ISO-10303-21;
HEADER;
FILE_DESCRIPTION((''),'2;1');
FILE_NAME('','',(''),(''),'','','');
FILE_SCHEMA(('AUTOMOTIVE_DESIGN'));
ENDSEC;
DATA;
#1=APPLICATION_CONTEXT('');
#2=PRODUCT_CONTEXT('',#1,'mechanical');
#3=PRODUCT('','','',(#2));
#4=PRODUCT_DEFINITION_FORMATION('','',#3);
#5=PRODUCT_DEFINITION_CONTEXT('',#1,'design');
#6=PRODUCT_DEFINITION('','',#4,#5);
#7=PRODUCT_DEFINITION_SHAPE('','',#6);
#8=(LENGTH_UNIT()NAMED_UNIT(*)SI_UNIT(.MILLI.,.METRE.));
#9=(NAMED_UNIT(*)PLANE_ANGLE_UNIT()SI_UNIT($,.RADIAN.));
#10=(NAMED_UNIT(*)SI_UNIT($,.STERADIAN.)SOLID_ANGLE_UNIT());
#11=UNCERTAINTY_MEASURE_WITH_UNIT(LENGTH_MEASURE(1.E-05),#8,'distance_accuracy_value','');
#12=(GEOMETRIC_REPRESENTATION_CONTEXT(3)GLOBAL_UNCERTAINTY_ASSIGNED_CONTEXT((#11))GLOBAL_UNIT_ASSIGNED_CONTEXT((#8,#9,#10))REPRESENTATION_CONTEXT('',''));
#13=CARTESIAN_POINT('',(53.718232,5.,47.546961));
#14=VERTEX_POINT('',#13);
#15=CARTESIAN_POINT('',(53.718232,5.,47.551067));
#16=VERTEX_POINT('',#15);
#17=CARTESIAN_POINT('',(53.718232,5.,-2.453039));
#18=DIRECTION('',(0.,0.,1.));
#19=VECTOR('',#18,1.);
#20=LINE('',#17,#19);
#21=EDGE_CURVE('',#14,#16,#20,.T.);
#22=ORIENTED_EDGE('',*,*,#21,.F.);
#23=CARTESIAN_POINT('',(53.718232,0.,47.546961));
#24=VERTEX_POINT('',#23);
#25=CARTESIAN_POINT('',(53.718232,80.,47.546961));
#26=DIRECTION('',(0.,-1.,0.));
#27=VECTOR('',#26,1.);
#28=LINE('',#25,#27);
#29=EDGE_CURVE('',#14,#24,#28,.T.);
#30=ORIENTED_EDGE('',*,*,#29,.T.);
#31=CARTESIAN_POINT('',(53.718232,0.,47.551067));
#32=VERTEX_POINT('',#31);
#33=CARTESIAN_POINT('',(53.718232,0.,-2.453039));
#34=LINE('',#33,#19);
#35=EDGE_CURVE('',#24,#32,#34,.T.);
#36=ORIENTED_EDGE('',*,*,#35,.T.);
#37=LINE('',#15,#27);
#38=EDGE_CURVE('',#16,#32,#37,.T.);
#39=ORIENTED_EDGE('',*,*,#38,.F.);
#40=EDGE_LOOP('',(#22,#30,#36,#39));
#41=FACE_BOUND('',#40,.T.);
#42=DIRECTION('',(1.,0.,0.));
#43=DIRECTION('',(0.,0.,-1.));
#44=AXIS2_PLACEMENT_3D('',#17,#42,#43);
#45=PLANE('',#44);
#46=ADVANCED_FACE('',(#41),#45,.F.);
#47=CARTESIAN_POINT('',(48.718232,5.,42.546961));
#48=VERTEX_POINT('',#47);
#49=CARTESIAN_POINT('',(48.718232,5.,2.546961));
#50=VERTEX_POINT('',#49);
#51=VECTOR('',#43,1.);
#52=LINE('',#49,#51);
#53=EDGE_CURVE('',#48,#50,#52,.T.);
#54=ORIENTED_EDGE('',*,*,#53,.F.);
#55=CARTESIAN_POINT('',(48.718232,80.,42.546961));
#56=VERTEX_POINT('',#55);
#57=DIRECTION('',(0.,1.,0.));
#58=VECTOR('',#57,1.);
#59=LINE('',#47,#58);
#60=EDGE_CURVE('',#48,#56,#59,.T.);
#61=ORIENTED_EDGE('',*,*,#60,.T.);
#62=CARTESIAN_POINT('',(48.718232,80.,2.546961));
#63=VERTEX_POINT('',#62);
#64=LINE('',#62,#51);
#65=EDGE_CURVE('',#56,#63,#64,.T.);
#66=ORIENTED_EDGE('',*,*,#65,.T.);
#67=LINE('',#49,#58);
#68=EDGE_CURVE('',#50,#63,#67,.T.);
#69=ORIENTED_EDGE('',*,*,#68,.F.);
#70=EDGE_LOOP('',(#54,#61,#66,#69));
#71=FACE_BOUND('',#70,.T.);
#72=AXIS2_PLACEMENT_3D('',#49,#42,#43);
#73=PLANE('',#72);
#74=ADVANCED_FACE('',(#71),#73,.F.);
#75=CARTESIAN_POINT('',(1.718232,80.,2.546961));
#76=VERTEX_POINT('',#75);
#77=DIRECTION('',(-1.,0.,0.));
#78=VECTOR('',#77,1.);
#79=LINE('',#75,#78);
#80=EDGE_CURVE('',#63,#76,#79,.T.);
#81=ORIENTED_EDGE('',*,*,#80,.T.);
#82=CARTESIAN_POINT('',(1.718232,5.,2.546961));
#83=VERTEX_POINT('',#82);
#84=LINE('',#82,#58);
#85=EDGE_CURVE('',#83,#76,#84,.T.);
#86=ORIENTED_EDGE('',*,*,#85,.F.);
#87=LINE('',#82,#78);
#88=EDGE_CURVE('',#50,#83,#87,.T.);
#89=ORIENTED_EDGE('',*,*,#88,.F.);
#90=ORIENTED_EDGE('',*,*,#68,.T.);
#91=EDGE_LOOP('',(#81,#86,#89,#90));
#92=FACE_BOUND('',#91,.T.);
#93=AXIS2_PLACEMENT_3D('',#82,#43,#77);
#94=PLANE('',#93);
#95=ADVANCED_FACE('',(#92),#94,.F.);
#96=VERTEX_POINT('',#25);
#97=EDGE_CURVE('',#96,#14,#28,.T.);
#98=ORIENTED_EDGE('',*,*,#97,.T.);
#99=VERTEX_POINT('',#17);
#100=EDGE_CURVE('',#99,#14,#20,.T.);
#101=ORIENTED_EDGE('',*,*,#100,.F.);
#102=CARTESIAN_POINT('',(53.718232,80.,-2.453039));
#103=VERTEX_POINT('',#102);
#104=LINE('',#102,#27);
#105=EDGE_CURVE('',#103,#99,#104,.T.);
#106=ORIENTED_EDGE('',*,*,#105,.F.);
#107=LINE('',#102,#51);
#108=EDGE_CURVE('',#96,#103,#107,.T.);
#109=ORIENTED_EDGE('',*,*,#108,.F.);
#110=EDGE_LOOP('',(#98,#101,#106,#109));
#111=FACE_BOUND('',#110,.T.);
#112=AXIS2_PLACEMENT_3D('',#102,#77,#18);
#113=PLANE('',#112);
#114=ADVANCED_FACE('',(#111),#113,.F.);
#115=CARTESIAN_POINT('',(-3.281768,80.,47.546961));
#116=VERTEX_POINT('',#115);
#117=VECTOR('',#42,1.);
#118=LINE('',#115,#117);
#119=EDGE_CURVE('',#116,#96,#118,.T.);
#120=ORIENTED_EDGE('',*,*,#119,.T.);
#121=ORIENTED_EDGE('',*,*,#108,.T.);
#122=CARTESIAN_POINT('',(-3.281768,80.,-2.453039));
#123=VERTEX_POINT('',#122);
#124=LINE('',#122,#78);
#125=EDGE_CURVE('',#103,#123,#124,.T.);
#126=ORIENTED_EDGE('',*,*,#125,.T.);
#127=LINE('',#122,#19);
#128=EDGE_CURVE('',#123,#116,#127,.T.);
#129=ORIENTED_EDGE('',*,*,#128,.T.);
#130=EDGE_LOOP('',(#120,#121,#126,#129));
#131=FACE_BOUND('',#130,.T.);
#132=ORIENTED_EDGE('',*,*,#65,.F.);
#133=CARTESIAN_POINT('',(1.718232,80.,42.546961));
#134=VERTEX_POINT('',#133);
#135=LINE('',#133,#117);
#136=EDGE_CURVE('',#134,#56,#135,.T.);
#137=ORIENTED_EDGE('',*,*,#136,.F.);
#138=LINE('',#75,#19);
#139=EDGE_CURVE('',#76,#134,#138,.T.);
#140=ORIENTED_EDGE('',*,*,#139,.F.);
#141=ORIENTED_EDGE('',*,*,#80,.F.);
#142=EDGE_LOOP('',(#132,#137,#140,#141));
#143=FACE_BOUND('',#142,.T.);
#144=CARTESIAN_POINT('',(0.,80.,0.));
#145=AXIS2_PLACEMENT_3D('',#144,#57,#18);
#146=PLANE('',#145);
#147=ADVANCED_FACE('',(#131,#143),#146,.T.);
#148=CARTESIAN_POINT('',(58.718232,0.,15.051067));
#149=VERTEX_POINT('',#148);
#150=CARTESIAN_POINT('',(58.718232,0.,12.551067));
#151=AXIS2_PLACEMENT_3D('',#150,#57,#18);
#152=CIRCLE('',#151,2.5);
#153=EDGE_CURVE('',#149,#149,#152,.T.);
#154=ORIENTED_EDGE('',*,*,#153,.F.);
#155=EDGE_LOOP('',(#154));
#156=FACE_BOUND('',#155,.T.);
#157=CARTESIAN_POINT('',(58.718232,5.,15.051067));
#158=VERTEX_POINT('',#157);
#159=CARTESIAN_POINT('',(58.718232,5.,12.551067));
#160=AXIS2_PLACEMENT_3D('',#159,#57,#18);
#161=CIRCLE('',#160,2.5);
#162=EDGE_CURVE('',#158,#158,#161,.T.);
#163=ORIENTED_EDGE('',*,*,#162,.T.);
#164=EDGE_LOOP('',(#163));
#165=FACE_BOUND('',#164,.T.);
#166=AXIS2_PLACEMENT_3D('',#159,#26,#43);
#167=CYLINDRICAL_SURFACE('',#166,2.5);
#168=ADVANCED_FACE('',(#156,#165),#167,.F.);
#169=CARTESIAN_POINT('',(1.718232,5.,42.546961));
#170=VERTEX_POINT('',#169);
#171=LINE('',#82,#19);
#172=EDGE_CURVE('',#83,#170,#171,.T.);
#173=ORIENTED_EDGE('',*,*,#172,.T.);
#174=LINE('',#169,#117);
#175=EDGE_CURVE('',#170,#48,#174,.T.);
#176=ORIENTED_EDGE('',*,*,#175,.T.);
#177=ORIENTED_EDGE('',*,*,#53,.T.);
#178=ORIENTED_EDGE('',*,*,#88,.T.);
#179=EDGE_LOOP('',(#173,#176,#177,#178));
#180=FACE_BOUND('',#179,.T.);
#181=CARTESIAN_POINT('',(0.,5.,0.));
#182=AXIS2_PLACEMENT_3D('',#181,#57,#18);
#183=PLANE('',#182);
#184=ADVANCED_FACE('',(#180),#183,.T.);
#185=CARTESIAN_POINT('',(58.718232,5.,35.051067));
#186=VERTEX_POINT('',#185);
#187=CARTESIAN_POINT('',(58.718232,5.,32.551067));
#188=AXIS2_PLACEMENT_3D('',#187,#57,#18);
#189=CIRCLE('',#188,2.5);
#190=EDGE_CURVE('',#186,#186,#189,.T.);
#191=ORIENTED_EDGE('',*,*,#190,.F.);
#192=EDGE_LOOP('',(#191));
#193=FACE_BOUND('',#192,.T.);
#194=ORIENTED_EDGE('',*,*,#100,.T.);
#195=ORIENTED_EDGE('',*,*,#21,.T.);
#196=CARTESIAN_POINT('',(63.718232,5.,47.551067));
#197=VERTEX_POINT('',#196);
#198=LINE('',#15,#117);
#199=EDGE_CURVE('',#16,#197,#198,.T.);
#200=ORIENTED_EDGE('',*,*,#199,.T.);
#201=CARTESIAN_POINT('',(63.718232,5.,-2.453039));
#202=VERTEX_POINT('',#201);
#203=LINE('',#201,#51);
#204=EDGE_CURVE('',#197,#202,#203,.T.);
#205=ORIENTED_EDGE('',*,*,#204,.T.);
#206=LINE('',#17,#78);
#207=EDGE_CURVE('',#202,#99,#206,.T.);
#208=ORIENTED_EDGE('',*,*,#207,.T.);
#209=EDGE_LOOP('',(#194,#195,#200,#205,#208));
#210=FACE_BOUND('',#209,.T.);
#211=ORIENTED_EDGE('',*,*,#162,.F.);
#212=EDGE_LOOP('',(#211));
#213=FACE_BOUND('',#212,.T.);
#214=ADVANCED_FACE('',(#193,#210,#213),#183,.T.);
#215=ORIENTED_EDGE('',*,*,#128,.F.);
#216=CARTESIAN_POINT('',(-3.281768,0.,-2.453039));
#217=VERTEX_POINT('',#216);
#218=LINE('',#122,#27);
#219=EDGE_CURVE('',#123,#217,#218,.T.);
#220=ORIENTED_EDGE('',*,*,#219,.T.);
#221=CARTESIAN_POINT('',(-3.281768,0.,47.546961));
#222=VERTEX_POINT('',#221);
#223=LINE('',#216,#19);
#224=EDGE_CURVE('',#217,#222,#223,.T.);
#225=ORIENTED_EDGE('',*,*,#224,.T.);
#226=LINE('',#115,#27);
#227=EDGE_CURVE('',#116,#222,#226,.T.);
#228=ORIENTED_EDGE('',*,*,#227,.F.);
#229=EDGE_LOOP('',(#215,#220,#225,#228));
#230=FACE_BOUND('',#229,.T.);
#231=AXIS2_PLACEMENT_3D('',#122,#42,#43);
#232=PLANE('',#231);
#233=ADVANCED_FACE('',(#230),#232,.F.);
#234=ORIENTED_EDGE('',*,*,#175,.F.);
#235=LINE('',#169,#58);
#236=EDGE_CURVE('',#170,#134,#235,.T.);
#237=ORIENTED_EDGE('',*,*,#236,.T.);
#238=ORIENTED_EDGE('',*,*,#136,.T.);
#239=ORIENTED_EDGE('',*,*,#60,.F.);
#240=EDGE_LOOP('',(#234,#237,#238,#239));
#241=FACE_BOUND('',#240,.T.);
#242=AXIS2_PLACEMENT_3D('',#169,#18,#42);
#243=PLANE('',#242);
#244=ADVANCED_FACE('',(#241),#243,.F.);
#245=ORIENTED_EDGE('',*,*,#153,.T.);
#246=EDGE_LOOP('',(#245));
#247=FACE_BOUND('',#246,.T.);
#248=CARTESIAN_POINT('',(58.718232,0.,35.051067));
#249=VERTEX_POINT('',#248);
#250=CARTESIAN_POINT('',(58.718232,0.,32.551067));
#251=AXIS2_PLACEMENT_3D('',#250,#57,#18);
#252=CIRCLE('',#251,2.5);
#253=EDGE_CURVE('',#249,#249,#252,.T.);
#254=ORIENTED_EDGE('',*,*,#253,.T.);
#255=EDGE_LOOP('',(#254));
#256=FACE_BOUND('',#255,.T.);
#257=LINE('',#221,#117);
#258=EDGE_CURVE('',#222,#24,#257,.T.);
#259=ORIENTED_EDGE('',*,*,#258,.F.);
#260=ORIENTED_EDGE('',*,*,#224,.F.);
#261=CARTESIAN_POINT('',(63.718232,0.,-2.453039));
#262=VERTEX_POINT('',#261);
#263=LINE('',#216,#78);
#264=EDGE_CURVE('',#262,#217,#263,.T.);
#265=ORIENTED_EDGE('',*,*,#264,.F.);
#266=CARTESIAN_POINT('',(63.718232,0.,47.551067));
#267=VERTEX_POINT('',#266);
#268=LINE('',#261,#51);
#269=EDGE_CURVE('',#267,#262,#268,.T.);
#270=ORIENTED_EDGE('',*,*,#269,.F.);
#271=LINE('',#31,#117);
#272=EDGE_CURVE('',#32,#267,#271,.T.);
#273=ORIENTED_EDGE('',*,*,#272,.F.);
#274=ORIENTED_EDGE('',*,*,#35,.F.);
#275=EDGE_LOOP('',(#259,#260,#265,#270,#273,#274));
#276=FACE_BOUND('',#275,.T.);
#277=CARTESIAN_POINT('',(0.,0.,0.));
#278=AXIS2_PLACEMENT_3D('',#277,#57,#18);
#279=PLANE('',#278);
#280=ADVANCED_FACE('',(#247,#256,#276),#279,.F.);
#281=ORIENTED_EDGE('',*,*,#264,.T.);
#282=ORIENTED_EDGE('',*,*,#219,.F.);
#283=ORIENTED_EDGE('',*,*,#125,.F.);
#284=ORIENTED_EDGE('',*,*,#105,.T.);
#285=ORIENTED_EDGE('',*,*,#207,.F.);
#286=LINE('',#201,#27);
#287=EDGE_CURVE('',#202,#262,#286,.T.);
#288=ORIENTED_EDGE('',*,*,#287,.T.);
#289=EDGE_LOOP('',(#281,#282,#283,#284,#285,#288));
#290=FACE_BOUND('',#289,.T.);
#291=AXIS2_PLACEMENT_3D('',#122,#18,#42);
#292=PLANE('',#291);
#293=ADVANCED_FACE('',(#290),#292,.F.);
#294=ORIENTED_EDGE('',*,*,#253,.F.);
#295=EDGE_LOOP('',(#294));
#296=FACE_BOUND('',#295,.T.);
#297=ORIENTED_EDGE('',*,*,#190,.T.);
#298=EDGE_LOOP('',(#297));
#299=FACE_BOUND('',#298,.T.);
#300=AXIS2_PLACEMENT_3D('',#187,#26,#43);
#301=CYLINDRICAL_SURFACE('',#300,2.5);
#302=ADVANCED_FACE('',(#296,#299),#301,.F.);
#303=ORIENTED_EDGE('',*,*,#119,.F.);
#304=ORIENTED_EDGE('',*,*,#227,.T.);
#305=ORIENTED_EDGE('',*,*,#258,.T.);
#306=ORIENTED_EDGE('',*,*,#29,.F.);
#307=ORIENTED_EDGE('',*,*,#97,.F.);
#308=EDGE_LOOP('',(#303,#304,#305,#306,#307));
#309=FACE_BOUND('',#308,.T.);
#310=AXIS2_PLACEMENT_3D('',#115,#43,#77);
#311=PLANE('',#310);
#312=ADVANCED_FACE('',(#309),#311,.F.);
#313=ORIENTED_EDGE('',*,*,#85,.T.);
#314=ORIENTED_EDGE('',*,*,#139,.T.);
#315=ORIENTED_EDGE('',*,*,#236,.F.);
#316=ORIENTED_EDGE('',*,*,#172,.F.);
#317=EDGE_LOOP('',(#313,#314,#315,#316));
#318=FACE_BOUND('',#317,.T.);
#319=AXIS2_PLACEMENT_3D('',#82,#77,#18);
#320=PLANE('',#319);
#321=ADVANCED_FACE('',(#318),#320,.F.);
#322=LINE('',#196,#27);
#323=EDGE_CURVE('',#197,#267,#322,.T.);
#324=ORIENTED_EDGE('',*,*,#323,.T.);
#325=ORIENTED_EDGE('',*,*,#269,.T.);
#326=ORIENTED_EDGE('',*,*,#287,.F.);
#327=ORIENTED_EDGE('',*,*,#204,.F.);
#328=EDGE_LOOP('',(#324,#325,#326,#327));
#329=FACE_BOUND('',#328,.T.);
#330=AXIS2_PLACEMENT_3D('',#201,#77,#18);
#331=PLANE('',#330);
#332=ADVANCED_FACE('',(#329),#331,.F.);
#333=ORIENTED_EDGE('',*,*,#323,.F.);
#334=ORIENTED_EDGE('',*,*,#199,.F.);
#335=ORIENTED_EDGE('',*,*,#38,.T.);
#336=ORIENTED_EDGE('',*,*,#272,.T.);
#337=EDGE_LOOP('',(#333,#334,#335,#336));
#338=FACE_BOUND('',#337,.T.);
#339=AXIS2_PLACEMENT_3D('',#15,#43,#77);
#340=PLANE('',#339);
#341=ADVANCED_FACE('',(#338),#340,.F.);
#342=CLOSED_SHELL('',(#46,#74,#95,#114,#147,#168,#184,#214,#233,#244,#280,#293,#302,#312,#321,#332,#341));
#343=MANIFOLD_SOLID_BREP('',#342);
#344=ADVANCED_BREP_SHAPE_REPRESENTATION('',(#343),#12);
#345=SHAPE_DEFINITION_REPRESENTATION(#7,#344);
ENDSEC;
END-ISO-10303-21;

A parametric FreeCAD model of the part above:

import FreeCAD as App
import Part
import Sketcher

doc = App.newDocument("Part")
body = doc.addObject("PartDesign::Body", "Body")

# Sketch on XZ plane
sketch1 = doc.addObject("Sketcher::SketchObject", "Sketch")
body.addObject(sketch1)
sketch1.AttachmentSupport = (doc.XZ_Plane, [""])
sketch1.MapMode = "FlatFace"
sketch1.addGeometry([
    Part.LineSegment(App.Vector(-3.281768, -2.453039, 0), App.Vector(-3.281768, 47.546961, 0)),
    Part.LineSegment(App.Vector(-3.281768, 47.546961, 0), App.Vector(53.718232, 47.546961, 0)),
    Part.LineSegment(App.Vector(53.718232, 47.546961, 0), App.Vector(53.718232, -2.453039, 0)),
    Part.LineSegment(App.Vector(53.718232, -2.453039, 0), App.Vector(-3.281768, -2.453039, 0)),
], False)
sketch1.addConstraint([
    Sketcher.Constraint("Coincident", 0, 2, 1, 1),
    Sketcher.Constraint("Coincident", 1, 2, 2, 1),
    Sketcher.Constraint("Coincident", 2, 2, 3, 1),
    Sketcher.Constraint("Coincident", 3, 2, 0, 1),
    Sketcher.Constraint("Vertical", 0),
    Sketcher.Constraint("Horizontal", 1),
    Sketcher.Constraint("Vertical", 2),
    Sketcher.Constraint("Horizontal", 3),
    Sketcher.Constraint("DistanceX", 1, 1, 1, 2, 57.0),
    Sketcher.Constraint("DistanceY", 0, 1, 0, 2, 50.0),
    Sketcher.Constraint("DistanceY", -1, 1, 0, 2, 47.546961),
    Sketcher.Constraint("DistanceX", 0, 2, -1, 1, 3.281768),
])
pad1 = doc.addObject("PartDesign::Pad", "Pad")
body.addObject(pad1)
pad1.Profile = sketch1
pad1.Length = 80
pad1.Reversed = True

# Sketch on XZ plane
sketch2 = doc.addObject("Sketcher::SketchObject", "Sketch001")
body.addObject(sketch2)
sketch2.AttachmentSupport = (doc.XZ_Plane, [""])
sketch2.MapMode = "FlatFace"
sketch2.AttachmentOffset = App.Placement(App.Vector(0, 0, -80), App.Rotation())
sketch2.addGeometry([
    Part.LineSegment(App.Vector(1.718232, 2.546961, 0), App.Vector(1.718232, 42.546961, 0)),
    Part.LineSegment(App.Vector(1.718232, 42.546961, 0), App.Vector(48.718232, 42.546961, 0)),
    Part.LineSegment(App.Vector(48.718232, 42.546961, 0), App.Vector(48.718232, 2.546961, 0)),
    Part.LineSegment(App.Vector(48.718232, 2.546961, 0), App.Vector(1.718232, 2.546961, 0)),
], False)
sketch2.addConstraint([
    Sketcher.Constraint("Coincident", 0, 2, 1, 1),
    Sketcher.Constraint("Coincident", 1, 2, 2, 1),
    Sketcher.Constraint("Coincident", 2, 2, 3, 1),
    Sketcher.Constraint("Coincident", 3, 2, 0, 1),
    Sketcher.Constraint("Vertical", 0),
    Sketcher.Constraint("Horizontal", 1),
    Sketcher.Constraint("Vertical", 2),
    Sketcher.Constraint("Horizontal", 3),
    Sketcher.Constraint("DistanceX", 1, 1, 1, 2, 47.0),
    Sketcher.Constraint("DistanceY", 0, 1, 0, 2, 40.0),
    Sketcher.Constraint("DistanceY", -1, 1, 0, 2, 42.546961),
    Sketcher.Constraint("DistanceX", -1, 1, 0, 2, 1.718232),
])
pocket1 = doc.addObject("PartDesign::Pocket", "Pocket")
body.addObject(pocket1)
pocket1.Profile = sketch2
pocket1.Length = 75
pocket1.Reversed = True

# Sketch on XZ plane
sketch3 = doc.addObject("Sketcher::SketchObject", "Sketch002")
body.addObject(sketch3)
sketch3.AttachmentSupport = (doc.XZ_Plane, [""])
sketch3.MapMode = "FlatFace"
sketch3.addGeometry([
    Part.LineSegment(App.Vector(53.718232, -2.453039, 0), App.Vector(53.718232, 47.551067, 0)),  # 0
    Part.LineSegment(App.Vector(53.718232, 47.551067, 0), App.Vector(63.718232, 47.551067, 0)),  # 1
    Part.LineSegment(App.Vector(63.718232, 47.551067, 0), App.Vector(63.718232, -2.453039, 0)),  # 2
    Part.LineSegment(App.Vector(63.718232, -2.453039, 0), App.Vector(53.718232, -2.453039, 0)),  # 3
    Part.Circle(App.Vector(58.718232, 32.551067, 0), App.Vector(0, 0, 1), 2.5),  # 4
    Part.Circle(App.Vector(58.718232, 12.551067, 0), App.Vector(0, 0, 1), 2.5),  # 5
], False)
sketch3.addConstraint([
    Sketcher.Constraint("Coincident", 0, 2, 1, 1),
    Sketcher.Constraint("Coincident", 1, 2, 2, 1),
    Sketcher.Constraint("Coincident", 2, 2, 3, 1),
    Sketcher.Constraint("Coincident", 3, 2, 0, 1),
    Sketcher.Constraint("Vertical", 0),
    Sketcher.Constraint("Horizontal", 1),
    Sketcher.Constraint("Vertical", 2),
    Sketcher.Constraint("Horizontal", 3),
    Sketcher.Constraint("Equal", 4, 5),
    Sketcher.Constraint("Vertical", 4, 3, 5, 3),
    Sketcher.Constraint("Diameter", 4, 5.0),
    Sketcher.Constraint("DistanceX", 1, 1, 1, 2, 10.0),
    Sketcher.Constraint("DistanceY", 5, 3, 4, 3, 20.0),
    Sketcher.Constraint("DistanceX", 0, 2, 4, 3, 5.0),
    Sketcher.Constraint("DistanceY", 4, 3, 0, 2, 15.0),
    Sketcher.Constraint("DistanceY", 0, 1, 0, 2, 50.004106),
    Sketcher.Constraint("DistanceY", 2, 2, -1, 1, 2.453039),
    Sketcher.Constraint("DistanceX", -1, 1, 4, 3, 58.718232),
])
pad2 = doc.addObject("PartDesign::Pad", "Pad001")
body.addObject(pad2)
pad2.Profile = sketch3
pad2.Length = 5
pad2.Reversed = True

doc.recompute()
